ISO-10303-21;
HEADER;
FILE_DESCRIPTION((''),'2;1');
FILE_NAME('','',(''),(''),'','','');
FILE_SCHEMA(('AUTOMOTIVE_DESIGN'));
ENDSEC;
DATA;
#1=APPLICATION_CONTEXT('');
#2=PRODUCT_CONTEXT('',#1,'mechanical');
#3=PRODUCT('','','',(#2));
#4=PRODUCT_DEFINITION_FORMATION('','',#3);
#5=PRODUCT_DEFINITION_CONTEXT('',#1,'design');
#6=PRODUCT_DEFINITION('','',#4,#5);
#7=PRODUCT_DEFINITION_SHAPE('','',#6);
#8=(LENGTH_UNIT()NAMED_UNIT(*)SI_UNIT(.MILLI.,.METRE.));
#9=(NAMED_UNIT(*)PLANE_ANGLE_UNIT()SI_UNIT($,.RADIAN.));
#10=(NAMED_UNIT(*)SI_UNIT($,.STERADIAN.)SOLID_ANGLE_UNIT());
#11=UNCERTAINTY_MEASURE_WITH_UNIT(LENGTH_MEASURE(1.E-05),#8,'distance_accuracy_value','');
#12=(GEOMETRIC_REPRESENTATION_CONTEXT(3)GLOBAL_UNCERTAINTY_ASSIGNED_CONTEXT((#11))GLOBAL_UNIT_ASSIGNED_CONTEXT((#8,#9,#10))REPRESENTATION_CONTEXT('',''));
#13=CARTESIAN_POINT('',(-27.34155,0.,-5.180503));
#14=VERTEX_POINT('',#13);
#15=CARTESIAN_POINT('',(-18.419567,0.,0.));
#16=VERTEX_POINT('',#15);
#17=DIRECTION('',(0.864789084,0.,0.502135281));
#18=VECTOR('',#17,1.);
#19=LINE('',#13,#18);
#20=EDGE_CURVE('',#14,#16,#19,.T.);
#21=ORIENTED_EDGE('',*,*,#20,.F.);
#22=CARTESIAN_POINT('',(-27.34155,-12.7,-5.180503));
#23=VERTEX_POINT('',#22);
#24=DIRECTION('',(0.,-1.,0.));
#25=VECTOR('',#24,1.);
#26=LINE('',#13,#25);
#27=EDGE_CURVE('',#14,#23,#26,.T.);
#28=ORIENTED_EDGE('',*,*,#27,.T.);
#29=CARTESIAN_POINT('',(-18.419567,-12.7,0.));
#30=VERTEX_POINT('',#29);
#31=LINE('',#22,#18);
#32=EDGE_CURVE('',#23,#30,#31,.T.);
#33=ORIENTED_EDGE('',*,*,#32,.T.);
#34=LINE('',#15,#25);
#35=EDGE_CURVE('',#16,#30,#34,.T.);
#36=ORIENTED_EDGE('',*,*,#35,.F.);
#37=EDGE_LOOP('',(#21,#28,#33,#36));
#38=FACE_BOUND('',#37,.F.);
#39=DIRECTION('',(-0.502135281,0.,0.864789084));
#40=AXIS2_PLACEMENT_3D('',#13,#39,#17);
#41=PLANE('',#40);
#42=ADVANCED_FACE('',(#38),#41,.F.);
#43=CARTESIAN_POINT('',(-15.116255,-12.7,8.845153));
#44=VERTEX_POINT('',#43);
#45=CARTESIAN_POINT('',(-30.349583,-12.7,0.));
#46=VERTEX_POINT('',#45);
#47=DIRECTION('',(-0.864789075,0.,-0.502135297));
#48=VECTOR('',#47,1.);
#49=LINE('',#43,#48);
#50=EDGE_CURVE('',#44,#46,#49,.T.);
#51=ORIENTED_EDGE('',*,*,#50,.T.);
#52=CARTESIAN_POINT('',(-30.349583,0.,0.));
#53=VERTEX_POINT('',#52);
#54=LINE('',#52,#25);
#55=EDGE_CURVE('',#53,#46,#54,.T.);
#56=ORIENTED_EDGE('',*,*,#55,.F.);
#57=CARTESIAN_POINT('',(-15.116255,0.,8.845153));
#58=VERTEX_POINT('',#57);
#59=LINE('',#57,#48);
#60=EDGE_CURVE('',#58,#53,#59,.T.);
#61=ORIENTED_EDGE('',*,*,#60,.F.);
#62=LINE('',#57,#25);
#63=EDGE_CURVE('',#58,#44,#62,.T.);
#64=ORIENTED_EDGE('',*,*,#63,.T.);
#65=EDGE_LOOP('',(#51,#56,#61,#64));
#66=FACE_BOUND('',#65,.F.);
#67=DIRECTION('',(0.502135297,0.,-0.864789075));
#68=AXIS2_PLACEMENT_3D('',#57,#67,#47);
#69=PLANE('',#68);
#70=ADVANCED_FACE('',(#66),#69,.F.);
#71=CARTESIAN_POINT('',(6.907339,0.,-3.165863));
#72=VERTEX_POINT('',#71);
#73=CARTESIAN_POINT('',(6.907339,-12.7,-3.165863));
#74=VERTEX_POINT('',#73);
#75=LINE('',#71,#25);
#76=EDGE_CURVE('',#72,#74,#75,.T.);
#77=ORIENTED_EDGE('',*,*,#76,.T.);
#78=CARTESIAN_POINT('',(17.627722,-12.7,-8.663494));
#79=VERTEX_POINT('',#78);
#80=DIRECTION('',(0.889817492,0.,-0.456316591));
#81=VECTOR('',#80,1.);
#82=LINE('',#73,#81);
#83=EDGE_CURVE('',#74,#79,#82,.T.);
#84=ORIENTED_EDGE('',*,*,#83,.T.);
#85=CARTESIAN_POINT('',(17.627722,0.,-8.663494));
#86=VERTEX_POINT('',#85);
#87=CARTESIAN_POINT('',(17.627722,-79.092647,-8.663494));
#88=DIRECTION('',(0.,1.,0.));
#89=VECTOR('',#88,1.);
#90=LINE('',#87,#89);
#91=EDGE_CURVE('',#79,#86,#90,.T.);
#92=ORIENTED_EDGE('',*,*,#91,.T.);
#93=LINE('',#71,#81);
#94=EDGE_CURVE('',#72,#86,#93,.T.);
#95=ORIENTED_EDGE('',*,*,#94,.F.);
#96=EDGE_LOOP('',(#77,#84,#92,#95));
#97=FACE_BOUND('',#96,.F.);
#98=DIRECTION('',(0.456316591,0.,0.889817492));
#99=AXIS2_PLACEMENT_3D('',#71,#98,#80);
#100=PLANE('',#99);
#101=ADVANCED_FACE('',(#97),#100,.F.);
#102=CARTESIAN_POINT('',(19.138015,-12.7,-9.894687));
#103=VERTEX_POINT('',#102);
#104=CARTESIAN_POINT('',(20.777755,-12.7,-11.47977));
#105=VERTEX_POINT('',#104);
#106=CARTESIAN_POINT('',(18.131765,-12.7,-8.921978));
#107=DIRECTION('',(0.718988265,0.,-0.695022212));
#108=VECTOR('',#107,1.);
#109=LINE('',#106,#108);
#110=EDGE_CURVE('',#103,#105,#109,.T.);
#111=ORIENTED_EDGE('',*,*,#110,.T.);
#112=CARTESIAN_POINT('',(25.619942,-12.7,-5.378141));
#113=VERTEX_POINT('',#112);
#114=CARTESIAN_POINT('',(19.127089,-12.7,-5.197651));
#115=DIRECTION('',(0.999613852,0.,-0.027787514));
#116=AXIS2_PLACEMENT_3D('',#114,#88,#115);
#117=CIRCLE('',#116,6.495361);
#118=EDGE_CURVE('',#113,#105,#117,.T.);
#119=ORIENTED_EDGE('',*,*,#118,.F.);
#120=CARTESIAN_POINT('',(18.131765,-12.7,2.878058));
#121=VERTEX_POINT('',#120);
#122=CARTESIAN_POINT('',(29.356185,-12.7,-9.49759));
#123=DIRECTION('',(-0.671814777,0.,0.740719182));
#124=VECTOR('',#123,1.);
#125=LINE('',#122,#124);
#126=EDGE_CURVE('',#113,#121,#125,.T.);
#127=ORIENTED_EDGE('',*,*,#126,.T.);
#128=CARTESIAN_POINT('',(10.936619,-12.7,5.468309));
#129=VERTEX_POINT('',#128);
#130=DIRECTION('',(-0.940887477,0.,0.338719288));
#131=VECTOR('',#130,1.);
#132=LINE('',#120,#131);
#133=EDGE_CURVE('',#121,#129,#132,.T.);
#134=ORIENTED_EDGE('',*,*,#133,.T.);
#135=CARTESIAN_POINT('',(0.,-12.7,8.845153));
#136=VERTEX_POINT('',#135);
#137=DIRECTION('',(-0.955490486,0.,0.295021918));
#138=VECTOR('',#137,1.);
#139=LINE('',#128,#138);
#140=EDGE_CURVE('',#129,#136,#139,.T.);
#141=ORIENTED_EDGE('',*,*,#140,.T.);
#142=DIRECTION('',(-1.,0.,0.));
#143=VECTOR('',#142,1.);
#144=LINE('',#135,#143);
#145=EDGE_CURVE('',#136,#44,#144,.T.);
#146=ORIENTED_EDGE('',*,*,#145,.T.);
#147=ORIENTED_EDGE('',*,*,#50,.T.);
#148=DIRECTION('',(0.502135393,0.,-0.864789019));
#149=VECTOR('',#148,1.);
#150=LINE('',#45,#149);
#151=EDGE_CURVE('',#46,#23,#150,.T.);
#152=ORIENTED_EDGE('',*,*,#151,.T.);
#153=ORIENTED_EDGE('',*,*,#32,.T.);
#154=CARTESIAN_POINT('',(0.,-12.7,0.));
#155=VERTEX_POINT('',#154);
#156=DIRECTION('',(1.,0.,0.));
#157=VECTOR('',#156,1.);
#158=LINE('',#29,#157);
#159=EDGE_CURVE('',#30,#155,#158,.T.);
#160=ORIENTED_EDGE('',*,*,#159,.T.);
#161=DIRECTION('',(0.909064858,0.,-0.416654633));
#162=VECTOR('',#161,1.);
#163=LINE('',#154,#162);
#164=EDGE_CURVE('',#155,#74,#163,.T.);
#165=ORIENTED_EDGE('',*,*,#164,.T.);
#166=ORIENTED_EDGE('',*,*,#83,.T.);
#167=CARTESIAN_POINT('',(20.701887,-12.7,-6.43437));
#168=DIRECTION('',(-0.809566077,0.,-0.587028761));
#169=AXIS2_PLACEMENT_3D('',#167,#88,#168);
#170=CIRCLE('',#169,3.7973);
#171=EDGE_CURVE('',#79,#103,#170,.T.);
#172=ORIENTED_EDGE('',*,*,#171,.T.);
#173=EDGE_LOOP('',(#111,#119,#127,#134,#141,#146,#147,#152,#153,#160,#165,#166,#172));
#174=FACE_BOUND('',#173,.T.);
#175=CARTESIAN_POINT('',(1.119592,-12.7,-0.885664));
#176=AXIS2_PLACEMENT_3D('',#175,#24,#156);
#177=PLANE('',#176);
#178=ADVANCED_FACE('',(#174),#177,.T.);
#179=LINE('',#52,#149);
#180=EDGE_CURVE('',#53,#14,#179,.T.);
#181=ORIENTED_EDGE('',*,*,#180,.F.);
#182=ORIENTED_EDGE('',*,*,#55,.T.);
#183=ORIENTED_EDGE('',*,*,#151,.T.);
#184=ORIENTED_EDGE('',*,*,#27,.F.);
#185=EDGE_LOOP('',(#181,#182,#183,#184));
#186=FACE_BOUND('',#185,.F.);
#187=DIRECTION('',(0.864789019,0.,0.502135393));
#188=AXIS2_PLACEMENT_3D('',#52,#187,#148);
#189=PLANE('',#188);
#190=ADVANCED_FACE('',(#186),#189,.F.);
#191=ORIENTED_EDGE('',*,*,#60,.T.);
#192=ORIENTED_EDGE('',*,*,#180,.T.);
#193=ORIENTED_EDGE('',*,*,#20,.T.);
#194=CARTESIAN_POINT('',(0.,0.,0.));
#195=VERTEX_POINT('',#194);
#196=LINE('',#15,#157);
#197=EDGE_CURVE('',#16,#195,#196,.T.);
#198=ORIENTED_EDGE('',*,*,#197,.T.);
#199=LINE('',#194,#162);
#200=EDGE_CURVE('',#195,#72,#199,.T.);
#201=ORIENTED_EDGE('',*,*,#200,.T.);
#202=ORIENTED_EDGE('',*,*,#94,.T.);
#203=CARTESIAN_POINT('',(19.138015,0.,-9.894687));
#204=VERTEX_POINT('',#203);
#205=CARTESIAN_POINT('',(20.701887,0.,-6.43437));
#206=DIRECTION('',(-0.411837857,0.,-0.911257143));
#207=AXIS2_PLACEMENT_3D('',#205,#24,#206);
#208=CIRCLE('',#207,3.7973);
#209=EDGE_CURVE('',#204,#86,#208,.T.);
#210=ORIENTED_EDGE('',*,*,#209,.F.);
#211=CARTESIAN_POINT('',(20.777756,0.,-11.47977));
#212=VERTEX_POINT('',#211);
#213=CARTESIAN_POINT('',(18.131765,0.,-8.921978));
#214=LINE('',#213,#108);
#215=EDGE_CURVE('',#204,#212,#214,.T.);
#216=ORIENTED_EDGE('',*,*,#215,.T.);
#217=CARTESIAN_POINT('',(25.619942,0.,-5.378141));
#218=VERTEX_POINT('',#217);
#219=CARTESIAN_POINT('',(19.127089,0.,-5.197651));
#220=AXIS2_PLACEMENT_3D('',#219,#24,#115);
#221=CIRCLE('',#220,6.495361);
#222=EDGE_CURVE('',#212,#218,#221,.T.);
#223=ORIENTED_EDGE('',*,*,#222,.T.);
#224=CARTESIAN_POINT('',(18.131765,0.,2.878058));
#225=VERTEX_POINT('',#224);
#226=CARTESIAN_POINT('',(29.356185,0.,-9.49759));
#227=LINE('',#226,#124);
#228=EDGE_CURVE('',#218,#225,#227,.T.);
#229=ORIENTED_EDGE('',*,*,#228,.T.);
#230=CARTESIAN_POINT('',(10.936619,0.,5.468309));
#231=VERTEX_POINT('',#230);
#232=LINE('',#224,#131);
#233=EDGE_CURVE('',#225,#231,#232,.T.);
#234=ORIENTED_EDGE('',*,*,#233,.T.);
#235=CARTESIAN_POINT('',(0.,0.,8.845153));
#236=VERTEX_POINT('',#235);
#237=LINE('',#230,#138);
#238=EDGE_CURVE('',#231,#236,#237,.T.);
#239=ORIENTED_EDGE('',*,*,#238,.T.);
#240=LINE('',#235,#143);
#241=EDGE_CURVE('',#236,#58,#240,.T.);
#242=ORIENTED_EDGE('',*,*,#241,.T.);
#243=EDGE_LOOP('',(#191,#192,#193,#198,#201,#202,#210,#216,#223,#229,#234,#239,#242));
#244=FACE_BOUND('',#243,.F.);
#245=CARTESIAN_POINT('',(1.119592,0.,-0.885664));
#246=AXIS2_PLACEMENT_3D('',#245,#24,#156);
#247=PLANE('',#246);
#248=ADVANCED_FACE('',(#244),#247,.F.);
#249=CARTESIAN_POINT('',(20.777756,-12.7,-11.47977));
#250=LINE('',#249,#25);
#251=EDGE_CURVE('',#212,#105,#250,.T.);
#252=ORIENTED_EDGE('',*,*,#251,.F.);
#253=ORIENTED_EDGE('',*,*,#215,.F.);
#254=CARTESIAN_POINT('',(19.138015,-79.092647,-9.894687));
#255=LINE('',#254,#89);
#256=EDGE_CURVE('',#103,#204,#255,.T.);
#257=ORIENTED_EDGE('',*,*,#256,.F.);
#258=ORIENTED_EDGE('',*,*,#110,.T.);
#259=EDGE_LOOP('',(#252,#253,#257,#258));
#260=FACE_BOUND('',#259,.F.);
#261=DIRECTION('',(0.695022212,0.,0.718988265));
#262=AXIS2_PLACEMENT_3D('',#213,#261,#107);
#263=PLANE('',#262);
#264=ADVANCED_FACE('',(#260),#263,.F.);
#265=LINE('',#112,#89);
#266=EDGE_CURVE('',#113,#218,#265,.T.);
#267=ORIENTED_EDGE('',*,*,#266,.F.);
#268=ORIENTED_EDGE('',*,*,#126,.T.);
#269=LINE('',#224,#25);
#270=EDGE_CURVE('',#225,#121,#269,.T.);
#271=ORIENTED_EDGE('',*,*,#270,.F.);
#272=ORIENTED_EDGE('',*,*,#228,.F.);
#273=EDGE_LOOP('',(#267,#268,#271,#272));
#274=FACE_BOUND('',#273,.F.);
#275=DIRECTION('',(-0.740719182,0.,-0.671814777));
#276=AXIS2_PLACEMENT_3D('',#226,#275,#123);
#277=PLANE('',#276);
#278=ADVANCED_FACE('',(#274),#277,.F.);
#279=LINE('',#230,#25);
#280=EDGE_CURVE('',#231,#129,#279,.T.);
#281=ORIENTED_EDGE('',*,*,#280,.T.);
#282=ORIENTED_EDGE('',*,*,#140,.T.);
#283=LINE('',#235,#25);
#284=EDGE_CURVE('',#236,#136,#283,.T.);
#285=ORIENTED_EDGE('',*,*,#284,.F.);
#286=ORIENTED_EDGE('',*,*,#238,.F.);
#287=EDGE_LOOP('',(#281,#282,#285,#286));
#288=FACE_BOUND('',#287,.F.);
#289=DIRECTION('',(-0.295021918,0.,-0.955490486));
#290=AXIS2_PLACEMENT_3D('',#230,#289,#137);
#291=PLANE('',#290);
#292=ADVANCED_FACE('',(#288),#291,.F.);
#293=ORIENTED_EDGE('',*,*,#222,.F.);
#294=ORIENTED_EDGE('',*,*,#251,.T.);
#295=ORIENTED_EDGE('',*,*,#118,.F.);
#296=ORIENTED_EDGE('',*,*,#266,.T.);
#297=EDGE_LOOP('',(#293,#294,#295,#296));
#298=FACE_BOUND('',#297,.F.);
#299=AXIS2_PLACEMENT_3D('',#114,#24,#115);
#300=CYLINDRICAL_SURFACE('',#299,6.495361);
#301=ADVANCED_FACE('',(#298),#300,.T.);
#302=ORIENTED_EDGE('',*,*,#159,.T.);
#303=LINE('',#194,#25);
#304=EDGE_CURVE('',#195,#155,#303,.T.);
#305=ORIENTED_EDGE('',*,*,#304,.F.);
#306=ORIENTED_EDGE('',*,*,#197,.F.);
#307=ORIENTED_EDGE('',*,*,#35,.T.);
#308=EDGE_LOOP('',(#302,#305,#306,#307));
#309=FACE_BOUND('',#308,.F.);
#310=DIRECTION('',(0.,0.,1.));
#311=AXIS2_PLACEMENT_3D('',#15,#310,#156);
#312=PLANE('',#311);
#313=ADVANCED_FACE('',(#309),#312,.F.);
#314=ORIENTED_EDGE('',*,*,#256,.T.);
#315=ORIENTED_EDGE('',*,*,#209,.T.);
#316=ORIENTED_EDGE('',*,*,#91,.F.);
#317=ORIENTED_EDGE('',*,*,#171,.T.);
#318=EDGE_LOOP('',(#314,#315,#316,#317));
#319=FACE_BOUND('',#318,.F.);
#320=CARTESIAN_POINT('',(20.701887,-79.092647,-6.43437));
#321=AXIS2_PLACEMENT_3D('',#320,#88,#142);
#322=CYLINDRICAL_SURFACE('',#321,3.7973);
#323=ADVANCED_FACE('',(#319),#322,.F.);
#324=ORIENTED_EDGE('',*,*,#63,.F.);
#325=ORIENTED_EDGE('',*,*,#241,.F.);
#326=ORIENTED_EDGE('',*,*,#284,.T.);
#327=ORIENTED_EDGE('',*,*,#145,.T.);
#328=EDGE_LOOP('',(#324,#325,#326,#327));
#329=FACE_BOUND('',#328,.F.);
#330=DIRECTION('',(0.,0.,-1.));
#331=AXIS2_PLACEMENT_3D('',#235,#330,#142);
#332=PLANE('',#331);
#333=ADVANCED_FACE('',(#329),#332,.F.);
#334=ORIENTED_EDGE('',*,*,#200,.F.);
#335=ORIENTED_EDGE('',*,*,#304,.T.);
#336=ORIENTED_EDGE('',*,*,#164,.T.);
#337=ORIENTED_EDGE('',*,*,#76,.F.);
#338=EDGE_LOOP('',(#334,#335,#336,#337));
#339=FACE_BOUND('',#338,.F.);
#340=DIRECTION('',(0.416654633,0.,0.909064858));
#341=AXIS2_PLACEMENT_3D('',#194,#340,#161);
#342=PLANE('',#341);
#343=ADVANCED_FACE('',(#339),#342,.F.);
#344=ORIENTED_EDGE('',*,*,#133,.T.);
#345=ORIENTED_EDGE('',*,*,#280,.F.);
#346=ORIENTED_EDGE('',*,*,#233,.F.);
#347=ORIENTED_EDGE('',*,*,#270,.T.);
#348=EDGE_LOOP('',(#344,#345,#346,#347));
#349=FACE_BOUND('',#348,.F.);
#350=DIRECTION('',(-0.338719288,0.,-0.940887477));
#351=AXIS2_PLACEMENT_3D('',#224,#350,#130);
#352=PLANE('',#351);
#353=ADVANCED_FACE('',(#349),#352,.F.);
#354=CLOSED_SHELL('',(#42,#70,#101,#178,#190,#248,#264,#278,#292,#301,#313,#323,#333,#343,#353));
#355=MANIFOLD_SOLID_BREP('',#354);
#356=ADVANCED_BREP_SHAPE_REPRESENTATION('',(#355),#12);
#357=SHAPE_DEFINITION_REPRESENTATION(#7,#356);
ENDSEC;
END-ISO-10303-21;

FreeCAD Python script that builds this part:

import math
import FreeCAD as App
import Part
import Sketcher

V = App.Vector
Q = App.Units.Quantity


def add_polygon(sketch, points):
    """Adds a closed chain of lines whose ends are joined by coincident constraints."""
    first, n = sketch.GeometryCount, len(points)
    for a, b in zip(points, points[1:] + points[:1]):
        sketch.addGeometry(Part.LineSegment(App.Vector(*a, 0), App.Vector(*b, 0)), False)
    for i in range(n):
        sketch.addConstraint(Sketcher.Constraint("Coincident", first + i, 2, first + (i + 1) % n, 1))

doc = App.newDocument("Part")
params = doc.addObject("Spreadsheet::Sheet", "Params")
for row, (alias, value) in enumerate([
    ("pad1_length", "0.5 in"),
    ("sketch2_diameter", "0.299 in"),
    ("hole_diameter", "0.299 in"),
    ("pocket1_length", "1 in"),
], start=1):
    params.set(f"A{row}", alias)
    params.set(f"B{row}", "=" + value)
    params.setAlias(f"B{row}", alias)

body = doc.addObject("PartDesign::Body", "Body")

# Sketch on XZ plane
sketch1 = doc.addObject("Sketcher::SketchObject", "Sketch")
body.addObject(sketch1)
sketch1.AttachmentSupport = (doc.XZ_Plane, [""])
sketch1.MapMode = "FlatFace"
add_polygon(sketch1, [(-18, 0), (0, 0), (7, -3), (18, -9), (27, -17), (29, -9), (18, 3), (11, 5), (0, 9), (-15, 9), (-30, 0), (-27, -5)])  # lines 0-11
sketch1.addConstraint([
    Sketcher.Constraint("Horizontal", 0),
    Sketcher.Constraint("Horizontal", 8),
    Sketcher.Constraint("Coincident", 0, 2, -1, 1),
    Sketcher.Constraint("PointOnObject", 7, 2, -2),
    Sketcher.Constraint("PointOnObject", 9, 2, -1),
    Sketcher.Constraint("Perpendicular", 9, 10),
    Sketcher.Constraint("Perpendicular", 10, 11),
    Sketcher.Constraint("Vertical", 2, 2, 5, 2),
    Sketcher.Constraint("Distance", 2, Q("12.614301 mm")),
    Sketcher.Constraint("DistanceY", 4, 2, 6, 2, Q("14.965899 mm")),
    Sketcher.Constraint("Distance", 1, Q("7.598291 mm")),
    Sketcher.Constraint("Distance", 5, Q("16.707611 mm")),
    Sketcher.Constraint("Distance", 6, Q("7.647191 mm")),
    Sketcher.Constraint("Distance", 7, Q("11.446078 mm")),
    Sketcher.Constraint("Distance", 9, Q("17.615079 mm")),
    Sketcher.Constraint("Distance", 10, Q("5.990482 mm")),
    Sketcher.Constraint("DistanceX", 0, 1, 0, 2, Q("18.419567 mm")),
    Sketcher.Constraint("DistanceX", 8, 2, 8, 1, Q("15.116255 mm")),
    Sketcher.Constraint("DistanceX", -1, 1, 1, 2, Q("6.907339 mm")),
    Sketcher.Constraint("DistanceY", 4, 2, -1, 1, Q("9.49759 mm")),
    Sketcher.Constraint("DistanceX", 2, 2, 3, 2, Q("8.63417 mm")),
    Sketcher.Constraint("DistanceX", 3, 2, 4, 2, Q("2.59025 mm")),
    Sketcher.Constraint("Distance", 3, Q("12.008777 mm")),
])
pad1 = doc.addObject("PartDesign::Pad", "Pad")
body.addObject(pad1)
pad1.Profile = sketch1
pad1.setExpression("Length", "Params.pad1_length")

# Sketch on XZ plane
sketch2 = doc.addObject("Sketcher::SketchObject", "Sketch001")
body.addObject(sketch2)
sketch2.AttachmentSupport = (doc.XZ_Plane, [""])
sketch2.MapMode = "FlatFace"
sketch2.AttachmentOffset = App.Placement(V(0, 0, 0.5 * 25.4), App.Rotation())
sketch2.addGeometry(Part.Circle(V(20.7, -6.4, 0), V(0, 0, 1), 3.8), False)
sketch2.addConstraint([
    Sketcher.Constraint("Diameter", 0, Q("0.299 in")),
    Sketcher.Constraint("DistanceY", 0, 3, -1, 1, Q("6.43437 mm")),
    Sketcher.Constraint("DistanceX", -1, 1, 0, 3, Q("20.701887 mm")),
])
sketch2.setExpression("Constraints[0]", "Params.sketch2_diameter")
doc.recompute()
hole = doc.addObject("PartDesign::Hole", "Hole")
body.addObject(hole)
hole.Profile = sketch2
hole.ThreadType = "None"
hole.setExpression("Diameter", "Params.hole_diameter")
hole.DepthType = "ThroughAll"

# Sketch on XZ plane
sketch3 = doc.addObject("Sketcher::SketchObject", "Sketch002")
body.addObject(sketch3)
sketch3.AttachmentSupport = (doc.XZ_Plane, [""])
sketch3.MapMode = "FlatFace"
sketch3.AttachmentOffset = App.Placement(V(0, 0, 0.5 * 25.4), App.Rotation())
sketch3.addGeometry([
    Part.ArcOfCircle(Part.Circle(V(19, -5, 0), V(0, 0, 1), 6), math.radians(-75), math.radians(-2)),
    Part.LineSegment(V(21, -11, 0), V(27, -17, 0)),
    Part.LineSegment(V(27, -17, 0), V(29, -9, 0)),
    Part.LineSegment(V(29, -9, 0), V(26, -5, 0)),
], False)
sketch3.addConstraint([
    Sketcher.Constraint("Coincident", 0, 1, 1, 1),
    Sketcher.Constraint("Coincident", 1, 2, 2, 1),
    Sketcher.Constraint("Coincident", 2, 2, 3, 1),
    Sketcher.Constraint("Coincident", 3, 2, 0, 2),
    Sketcher.Constraint("Radius", 0, Q("6.495361 mm")),
    Sketcher.Constraint("Distance", 1, Q("8.328619 mm")),
    Sketcher.Constraint("Distance", 3, Q("5.561418 mm")),
    Sketcher.Constraint("DistanceX", -1, 1, 0, 3, Q("19.127089 mm")),
    Sketcher.Constraint("DistanceY", 0, 3, -1, 1, Q("5.197651 mm")),
    Sketcher.Constraint("DistanceY", 0, 1, -1, 1, Q("11.47977 mm")),
    Sketcher.Constraint("DistanceY", 2, 2, -1, 1, Q("9.49759 mm")),
    Sketcher.Constraint("DistanceY", 3, 2, -1, 1, Q("5.378141 mm")),
    Sketcher.Constraint("DistanceX", 0, 1, 1, 2, Q("5.98818 mm")),
])
pocket1 = doc.addObject("PartDesign::Pocket", "Pocket")
body.addObject(pocket1)
pocket1.Profile = sketch3
pocket1.setExpression("Length", "Params.pocket1_length")

doc.recompute()
